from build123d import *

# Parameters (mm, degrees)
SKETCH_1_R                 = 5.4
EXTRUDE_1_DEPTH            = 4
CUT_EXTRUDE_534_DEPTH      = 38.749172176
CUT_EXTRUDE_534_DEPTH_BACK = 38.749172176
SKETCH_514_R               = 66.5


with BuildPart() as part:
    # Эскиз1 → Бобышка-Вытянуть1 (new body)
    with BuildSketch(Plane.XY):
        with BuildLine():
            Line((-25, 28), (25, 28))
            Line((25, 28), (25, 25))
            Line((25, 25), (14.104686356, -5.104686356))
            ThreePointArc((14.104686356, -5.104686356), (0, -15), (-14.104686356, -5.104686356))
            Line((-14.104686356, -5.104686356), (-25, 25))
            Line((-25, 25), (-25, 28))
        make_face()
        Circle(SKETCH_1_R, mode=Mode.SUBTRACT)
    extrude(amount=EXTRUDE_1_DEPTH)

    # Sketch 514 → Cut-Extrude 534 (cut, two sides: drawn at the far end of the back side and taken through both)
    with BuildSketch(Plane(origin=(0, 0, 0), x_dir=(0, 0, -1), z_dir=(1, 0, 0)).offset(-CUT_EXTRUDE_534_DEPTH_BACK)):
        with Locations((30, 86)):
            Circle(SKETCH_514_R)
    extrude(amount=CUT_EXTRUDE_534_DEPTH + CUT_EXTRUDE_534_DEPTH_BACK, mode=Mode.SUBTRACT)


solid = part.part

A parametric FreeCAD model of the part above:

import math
import FreeCAD as App
import Part
import Sketcher
Q = App.Units.Quantity

doc = App.newDocument("Part")
body = doc.addObject("PartDesign::Body", "Body")

# Sketch on XY plane
sketch1 = body.newObject("Sketcher::SketchObject", "Sketch")
sketch1.AttachmentSupport = (doc.getObject("XY_Plane"), [""])
sketch1.MapMode = "FlatFace"
sketch1.addGeometry(Part.LineSegment(App.Vector(25, 28, 0), App.Vector(-25, 28, 0)), False)
sketch1.addGeometry(Part.LineSegment(App.Vector(-25, 28, 0), App.Vector(-25, 25, 0)), False)
sketch1.addGeometry(Part.LineSegment(App.Vector(-25, 25, 0), App.Vector(-14.104686, -5.104686, 0)), False)
sketch1.addGeometry(Part.ArcOfCircle(Part.Circle(App.Vector(0, 0, 0), App.Vector(0, 0, 1), 15), math.radians(-160.10409), math.radians(-19.89591)), False)
sketch1.addGeometry(Part.LineSegment(App.Vector(14.104686, -5.104686, 0), App.Vector(25, 25, 0)), False)
sketch1.addGeometry(Part.LineSegment(App.Vector(25, 25, 0), App.Vector(25, 28, 0)), False)
sketch1.addGeometry(Part.Circle(App.Vector(0, 0, 0), App.Vector(0, 0, 1), 5.4), False)
sketch1.addConstraint(Sketcher.Constraint("Coincident", 0, 2, 1, 1))
sketch1.addConstraint(Sketcher.Constraint("Coincident", 1, 2, 2, 1))
sketch1.addConstraint(Sketcher.Constraint("Tangent", 2, 2, 3, 1))
sketch1.addConstraint(Sketcher.Constraint("Tangent", 3, 2, 4, 1))
sketch1.addConstraint(Sketcher.Constraint("Coincident", 4, 2, 5, 1))
sketch1.addConstraint(Sketcher.Constraint("Coincident", 5, 2, 0, 1))
sketch1.addConstraint(Sketcher.Constraint("Horizontal", 0))
sketch1.addConstraint(Sketcher.Constraint("Vertical", 1))
sketch1.addConstraint(Sketcher.Constraint("Vertical", 5))
sketch1.addConstraint(Sketcher.Constraint("Coincident", 3, 3, -1, 1))
sketch1.addConstraint(Sketcher.Constraint("Coincident", 6, 3, -1, 1))
sketch1.addConstraint(Sketcher.Constraint("Symmetric", 1, 2, 4, 2, -2))
sketch1.addConstraint(Sketcher.Constraint("Radius", 3, Q("15 mm")))
sketch1.addConstraint(Sketcher.Constraint("Diameter", 6, Q("10.8 mm")))
sketch1.addConstraint(Sketcher.Constraint("DistanceX", 0, 2, 0, 1, Q("50 mm")))
sketch1.addConstraint(Sketcher.Constraint("DistanceY", 1, 2, 1, 1, Q("3 mm")))
sketch1.addConstraint(Sketcher.Constraint("DistanceY", -1, 1, 0, 2, Q("28 mm")))
pad1 = body.newObject("PartDesign::Pad", "Pad")
pad1.Profile = sketch1
pad1.Length = 4

# Sketch on YZ plane
sketch2 = body.newObject("Sketcher::SketchObject", "Sketch001")
sketch2.AttachmentSupport = (doc.getObject("YZ_Plane"), [""])
sketch2.MapMode = "FlatFace"
sketch2.addGeometry(Part.Circle(App.Vector(86, -30, 0), App.Vector(0, 0, 1), 66.5), False)
sketch2.addConstraint(Sketcher.Constraint("Diameter", 0, Q("133 mm")))
sketch2.addConstraint(Sketcher.Constraint("DistanceX", -1, 1, 0, 3, Q("86 mm")))
sketch2.addConstraint(Sketcher.Constraint("DistanceY", 0, 3, -1, 1, Q("30 mm")))
pocket1 = body.newObject("PartDesign::Pocket", "Pocket")
pocket1.Profile = sketch2
pocket1.Type = "ThroughAll"
pocket1.Midplane = True

doc.recompute()
